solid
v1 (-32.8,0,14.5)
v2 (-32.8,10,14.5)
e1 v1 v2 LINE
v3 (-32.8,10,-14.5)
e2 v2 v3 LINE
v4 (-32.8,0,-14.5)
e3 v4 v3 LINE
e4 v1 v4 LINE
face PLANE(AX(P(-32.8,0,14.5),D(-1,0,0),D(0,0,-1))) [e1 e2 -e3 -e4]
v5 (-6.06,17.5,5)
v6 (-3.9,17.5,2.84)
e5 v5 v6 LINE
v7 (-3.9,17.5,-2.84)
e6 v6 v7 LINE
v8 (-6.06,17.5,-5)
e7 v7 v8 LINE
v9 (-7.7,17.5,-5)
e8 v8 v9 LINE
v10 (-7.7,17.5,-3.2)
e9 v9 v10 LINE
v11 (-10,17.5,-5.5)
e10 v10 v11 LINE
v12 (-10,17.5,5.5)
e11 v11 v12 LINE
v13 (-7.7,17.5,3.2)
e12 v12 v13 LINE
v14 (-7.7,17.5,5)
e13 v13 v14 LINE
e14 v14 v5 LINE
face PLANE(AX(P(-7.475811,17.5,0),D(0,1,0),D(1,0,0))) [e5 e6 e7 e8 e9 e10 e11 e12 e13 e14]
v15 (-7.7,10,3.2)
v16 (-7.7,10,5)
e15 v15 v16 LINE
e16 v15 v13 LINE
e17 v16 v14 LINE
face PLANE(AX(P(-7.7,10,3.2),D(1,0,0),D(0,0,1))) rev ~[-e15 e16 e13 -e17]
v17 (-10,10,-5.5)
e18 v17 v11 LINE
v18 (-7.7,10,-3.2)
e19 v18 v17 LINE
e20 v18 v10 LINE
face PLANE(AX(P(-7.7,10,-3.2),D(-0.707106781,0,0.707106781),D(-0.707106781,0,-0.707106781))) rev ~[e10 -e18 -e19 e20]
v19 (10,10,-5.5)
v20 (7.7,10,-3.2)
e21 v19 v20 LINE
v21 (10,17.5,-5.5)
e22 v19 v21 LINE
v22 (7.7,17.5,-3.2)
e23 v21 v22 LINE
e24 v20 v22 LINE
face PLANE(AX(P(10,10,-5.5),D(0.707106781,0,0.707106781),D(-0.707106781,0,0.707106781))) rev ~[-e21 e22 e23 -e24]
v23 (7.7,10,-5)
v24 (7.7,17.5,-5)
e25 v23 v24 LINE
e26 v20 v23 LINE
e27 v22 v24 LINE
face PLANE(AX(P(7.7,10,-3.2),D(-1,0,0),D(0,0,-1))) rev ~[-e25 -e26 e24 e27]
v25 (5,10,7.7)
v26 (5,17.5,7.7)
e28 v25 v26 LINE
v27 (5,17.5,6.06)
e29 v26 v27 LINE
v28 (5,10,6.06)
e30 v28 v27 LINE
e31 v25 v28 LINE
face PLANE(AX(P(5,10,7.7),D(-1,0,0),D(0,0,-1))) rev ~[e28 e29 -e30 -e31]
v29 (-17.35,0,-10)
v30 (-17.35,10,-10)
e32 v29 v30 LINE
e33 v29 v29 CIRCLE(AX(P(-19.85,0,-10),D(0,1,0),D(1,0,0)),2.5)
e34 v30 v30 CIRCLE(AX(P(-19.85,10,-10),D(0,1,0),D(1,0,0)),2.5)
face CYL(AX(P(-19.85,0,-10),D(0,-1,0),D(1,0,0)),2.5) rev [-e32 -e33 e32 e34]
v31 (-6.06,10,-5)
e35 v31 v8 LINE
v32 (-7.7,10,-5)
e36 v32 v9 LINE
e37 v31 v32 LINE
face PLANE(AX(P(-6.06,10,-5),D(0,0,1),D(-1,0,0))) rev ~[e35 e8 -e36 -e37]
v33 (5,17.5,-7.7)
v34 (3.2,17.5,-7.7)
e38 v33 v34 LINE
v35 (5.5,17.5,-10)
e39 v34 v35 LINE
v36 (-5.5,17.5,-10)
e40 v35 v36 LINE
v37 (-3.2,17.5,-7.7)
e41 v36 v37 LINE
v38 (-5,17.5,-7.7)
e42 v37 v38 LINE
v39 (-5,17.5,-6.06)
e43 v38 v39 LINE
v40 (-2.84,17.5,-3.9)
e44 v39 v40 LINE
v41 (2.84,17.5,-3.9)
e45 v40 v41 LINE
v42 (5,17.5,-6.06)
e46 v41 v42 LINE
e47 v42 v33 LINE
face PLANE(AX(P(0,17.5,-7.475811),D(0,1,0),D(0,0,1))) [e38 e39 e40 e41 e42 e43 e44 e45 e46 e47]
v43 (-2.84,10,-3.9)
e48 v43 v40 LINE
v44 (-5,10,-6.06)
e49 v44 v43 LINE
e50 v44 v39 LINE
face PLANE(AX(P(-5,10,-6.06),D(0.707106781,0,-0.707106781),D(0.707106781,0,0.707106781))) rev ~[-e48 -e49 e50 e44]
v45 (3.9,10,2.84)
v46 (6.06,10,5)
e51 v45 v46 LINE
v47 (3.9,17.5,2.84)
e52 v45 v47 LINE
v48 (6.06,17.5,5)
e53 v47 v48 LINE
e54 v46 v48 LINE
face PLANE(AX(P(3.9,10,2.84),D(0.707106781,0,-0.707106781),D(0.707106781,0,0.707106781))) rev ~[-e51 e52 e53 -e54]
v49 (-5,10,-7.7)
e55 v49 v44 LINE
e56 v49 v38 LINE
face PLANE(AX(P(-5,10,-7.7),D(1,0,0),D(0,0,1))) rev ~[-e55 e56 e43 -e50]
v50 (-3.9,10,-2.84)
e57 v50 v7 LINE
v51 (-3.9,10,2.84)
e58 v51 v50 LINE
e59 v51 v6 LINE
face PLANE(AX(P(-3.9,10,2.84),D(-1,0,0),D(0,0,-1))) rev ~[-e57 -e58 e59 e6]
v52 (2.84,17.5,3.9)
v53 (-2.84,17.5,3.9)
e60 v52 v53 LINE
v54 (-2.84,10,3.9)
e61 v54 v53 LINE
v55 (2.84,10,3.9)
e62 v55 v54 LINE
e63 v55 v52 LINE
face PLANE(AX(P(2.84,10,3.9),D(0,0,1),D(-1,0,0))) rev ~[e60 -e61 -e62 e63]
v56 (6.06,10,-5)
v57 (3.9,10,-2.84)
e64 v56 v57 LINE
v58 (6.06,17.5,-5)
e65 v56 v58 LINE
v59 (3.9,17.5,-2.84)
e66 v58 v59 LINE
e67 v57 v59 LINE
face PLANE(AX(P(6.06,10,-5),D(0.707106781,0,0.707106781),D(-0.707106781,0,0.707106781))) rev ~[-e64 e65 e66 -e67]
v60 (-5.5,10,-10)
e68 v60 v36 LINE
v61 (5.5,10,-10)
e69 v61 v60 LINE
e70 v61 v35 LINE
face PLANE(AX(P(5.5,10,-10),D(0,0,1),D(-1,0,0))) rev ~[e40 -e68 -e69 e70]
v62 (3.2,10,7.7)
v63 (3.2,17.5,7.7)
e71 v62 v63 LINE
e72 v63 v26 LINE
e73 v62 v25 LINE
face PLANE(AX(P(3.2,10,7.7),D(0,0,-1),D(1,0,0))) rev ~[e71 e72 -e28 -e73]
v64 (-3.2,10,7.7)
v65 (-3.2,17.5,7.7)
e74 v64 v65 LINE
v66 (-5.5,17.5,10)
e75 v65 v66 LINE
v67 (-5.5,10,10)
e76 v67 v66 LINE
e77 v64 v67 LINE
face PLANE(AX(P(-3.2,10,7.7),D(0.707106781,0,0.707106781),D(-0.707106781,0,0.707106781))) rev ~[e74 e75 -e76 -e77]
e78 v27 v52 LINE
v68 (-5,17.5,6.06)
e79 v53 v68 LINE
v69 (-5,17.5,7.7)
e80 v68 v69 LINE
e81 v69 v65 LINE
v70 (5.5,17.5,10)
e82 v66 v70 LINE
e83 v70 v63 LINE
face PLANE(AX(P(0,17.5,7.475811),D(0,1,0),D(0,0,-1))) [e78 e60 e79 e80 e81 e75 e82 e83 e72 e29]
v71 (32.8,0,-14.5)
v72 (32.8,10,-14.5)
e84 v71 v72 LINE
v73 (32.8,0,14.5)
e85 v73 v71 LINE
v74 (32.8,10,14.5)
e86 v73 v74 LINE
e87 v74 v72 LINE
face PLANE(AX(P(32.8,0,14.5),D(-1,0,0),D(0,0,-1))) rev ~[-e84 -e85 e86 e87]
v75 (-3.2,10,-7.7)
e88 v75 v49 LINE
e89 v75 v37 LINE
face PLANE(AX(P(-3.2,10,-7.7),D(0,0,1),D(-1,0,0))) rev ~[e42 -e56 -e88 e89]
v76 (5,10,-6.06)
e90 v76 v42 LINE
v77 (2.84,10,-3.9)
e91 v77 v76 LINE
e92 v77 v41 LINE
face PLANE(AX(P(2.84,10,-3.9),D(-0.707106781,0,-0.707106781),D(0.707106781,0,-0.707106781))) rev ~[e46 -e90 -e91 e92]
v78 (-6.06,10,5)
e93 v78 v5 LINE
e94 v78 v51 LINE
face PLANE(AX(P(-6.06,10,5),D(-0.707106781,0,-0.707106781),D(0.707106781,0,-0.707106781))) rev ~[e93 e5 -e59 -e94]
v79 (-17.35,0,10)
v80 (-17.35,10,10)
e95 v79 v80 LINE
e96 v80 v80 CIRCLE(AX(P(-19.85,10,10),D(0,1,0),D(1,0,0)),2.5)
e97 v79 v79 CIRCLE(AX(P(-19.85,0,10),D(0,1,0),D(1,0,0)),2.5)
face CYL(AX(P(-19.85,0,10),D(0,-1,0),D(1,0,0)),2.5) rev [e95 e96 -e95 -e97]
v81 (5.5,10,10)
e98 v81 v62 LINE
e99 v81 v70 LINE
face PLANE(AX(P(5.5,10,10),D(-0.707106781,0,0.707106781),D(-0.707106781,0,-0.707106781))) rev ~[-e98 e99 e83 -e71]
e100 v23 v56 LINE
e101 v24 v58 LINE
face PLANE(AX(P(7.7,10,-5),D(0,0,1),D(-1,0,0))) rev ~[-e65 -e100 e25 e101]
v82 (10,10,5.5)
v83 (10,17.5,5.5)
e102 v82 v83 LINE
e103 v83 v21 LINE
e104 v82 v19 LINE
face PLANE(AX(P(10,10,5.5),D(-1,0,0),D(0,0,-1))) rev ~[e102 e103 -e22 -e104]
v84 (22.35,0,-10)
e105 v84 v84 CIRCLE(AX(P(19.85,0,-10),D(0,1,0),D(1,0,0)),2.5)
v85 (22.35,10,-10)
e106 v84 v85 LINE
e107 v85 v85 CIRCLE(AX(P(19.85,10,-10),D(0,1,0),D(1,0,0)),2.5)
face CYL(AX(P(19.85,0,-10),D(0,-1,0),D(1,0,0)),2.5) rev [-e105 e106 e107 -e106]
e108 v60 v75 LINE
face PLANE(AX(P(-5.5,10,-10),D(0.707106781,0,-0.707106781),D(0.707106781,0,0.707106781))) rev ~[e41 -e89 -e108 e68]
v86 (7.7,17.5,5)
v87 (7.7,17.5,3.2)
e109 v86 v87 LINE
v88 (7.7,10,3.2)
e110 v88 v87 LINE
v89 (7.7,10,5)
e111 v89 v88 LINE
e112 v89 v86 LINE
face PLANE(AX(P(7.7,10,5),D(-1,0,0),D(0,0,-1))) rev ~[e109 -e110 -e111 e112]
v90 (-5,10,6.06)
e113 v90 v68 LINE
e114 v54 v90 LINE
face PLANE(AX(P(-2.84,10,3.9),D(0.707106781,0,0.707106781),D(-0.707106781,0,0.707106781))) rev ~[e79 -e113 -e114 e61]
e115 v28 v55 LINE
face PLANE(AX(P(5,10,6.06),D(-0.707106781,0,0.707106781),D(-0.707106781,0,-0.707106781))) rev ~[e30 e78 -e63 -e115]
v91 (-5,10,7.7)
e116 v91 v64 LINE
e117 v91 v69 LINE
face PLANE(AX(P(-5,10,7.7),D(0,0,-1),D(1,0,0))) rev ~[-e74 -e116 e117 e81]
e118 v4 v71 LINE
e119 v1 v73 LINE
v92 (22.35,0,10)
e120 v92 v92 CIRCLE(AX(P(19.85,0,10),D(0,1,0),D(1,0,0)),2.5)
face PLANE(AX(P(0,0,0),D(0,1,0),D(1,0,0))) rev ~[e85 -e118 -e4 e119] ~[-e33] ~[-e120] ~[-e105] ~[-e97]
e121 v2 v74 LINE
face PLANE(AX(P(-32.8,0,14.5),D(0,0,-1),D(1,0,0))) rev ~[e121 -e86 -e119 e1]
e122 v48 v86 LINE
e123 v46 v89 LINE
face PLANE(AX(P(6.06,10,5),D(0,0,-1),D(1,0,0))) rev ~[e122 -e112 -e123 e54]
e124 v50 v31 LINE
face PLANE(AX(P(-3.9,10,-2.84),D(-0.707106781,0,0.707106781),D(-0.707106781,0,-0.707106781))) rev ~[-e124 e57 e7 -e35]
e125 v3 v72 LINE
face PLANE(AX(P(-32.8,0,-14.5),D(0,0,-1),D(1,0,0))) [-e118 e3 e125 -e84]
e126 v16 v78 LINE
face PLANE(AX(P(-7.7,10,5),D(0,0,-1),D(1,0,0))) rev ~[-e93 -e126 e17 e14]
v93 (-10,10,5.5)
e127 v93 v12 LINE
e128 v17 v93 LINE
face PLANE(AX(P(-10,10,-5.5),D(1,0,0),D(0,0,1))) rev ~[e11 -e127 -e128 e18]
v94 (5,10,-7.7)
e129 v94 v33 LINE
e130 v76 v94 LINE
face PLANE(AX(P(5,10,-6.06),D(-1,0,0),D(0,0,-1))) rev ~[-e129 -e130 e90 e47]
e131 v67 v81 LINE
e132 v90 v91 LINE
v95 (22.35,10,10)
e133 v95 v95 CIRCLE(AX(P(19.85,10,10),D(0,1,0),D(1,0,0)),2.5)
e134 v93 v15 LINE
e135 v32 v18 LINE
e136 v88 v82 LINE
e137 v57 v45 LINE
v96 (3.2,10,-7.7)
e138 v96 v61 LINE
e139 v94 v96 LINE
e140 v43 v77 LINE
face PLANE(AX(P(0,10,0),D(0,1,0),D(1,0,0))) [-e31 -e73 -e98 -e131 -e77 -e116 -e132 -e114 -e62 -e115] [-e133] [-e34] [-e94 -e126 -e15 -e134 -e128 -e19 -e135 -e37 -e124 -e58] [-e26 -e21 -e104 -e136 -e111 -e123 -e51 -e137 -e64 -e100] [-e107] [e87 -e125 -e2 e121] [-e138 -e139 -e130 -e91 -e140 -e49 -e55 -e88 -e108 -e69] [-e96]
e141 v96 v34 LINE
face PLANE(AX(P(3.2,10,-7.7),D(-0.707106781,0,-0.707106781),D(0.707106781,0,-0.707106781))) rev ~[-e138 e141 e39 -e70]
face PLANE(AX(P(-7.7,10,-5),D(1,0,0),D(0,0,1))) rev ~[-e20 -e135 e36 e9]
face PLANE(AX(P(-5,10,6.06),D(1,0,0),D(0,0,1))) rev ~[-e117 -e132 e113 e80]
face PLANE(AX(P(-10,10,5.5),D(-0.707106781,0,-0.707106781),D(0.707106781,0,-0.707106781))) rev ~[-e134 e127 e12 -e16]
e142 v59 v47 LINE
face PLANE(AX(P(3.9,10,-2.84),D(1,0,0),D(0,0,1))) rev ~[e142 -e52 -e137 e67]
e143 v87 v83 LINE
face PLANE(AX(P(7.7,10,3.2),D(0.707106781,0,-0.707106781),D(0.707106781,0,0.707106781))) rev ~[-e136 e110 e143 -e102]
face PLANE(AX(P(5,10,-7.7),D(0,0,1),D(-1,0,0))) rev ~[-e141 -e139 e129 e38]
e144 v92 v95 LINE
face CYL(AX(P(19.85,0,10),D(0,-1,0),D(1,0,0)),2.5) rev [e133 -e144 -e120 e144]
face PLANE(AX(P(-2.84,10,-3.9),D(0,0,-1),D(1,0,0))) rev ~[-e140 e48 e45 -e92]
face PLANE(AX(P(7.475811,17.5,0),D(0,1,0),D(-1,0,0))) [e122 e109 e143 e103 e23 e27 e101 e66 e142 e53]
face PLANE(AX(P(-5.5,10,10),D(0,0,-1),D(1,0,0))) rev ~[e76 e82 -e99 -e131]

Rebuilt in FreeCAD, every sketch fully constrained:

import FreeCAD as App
import Part
import Sketcher

V = App.Vector
Q = App.Units.Quantity


def add_polygon(sketch, points):
    """Adds a closed chain of lines whose ends are joined by coincident constraints."""
    first, n = sketch.GeometryCount, len(points)
    for a, b in zip(points, points[1:] + points[:1]):
        sketch.addGeometry(Part.LineSegment(App.Vector(*a, 0), App.Vector(*b, 0)), False)
    for i in range(n):
        sketch.addConstraint(Sketcher.Constraint("Coincident", first + i, 2, first + (i + 1) % n, 1))

doc = App.newDocument("Part")
body = doc.addObject("PartDesign::Body", "Body")

# Sketch on XZ plane
sketch1 = doc.addObject("Sketcher::SketchObject", "Sketch")
body.addObject(sketch1)
sketch1.AttachmentSupport = (doc.XZ_Plane, [""])
sketch1.MapMode = "FlatFace"
add_polygon(sketch1, [(-32.8, -14.5), (-32.8, 14.5), (32.8, 14.5), (32.8, -14.5)])  # lines 0-3
sketch1.addGeometry(Part.Circle(V(-19.9, 10, 0), V(0, 0, 1), 2.5), False)  # 4
sketch1.addGeometry(Part.Circle(V(19.9, 10, 0), V(0, 0, 1), 2.5), False)  # 5
sketch1.addGeometry(Part.Circle(V(-19.9, -10, 0), V(0, 0, 1), 2.5), False)  # 6
sketch1.addGeometry(Part.Circle(V(19.9, -10, 0), V(0, 0, 1), 2.5), False)  # 7
sketch1.addConstraint([
    Sketcher.Constraint("Vertical", 0),
    Sketcher.Constraint("Horizontal", 1),
    Sketcher.Constraint("Vertical", 2),
    Sketcher.Constraint("Horizontal", 3),
    Sketcher.Constraint("Equal", 4, 5),
    Sketcher.Constraint("Equal", 5, 6),
    Sketcher.Constraint("Equal", 6, 7),
    Sketcher.Constraint("Symmetric", 5, 3, 6, 3, -1, 1),
    Sketcher.Constraint("Symmetric", 4, 3, 7, 3, -1, 1),
    Sketcher.Constraint("Symmetric", 0, 2, 2, 2, -1, 1),
    Sketcher.Constraint("Symmetric", 4, 3, 5, 3, -2),
    Sketcher.Constraint("Diameter", 4, Q("5 mm")),
    Sketcher.Constraint("DistanceY", 0, 1, 0, 2, Q("29 mm")),
    Sketcher.Constraint("DistanceX", 1, 1, 1, 2, Q("65.6 mm")),
    Sketcher.Constraint("DistanceY", -1, 1, 4, 3, Q("10 mm")),
    Sketcher.Constraint("DistanceX", 4, 3, 5, 3, Q("39.7 mm")),
])
pad1 = doc.addObject("PartDesign::Pad", "Pad")
body.addObject(pad1)
pad1.Profile = sketch1
pad1.Length = 10
pad1.Reversed = True

# Sketch on XZ plane
sketch2 = doc.addObject("Sketcher::SketchObject", "Sketch001")
body.addObject(sketch2)
sketch2.AttachmentSupport = (doc.XZ_Plane, [""])
sketch2.MapMode = "FlatFace"
sketch2.AttachmentOffset = App.Placement(V(0, 0, -10), App.Rotation())
add_polygon(sketch2, [(-10, -5.5), (-10, 5.5), (-7.7, 3.2), (-7.7, 5), (-6.1, 5), (-3.9, 2.8), (-3.9, -2.8), (-6.1, -5), (-7.7, -5), (-7.7, -3.2)])  # lines 0-9
sketch2.addConstraint([
    Sketcher.Constraint("Vertical", 0),
    Sketcher.Constraint("Vertical", 2),
    Sketcher.Constraint("Horizontal", 3),
    Sketcher.Constraint("Vertical", 5),
    Sketcher.Constraint("Horizontal", 7),
    Sketcher.Constraint("Vertical", 8),
    Sketcher.Constraint("Symmetric", 3, 2, 6, 2, -1),
    Sketcher.Constraint("Symmetric", 1, 2, 8, 2, -1),
    Sketcher.Constraint("Parallel", 1, 4),
    Sketcher.Constraint("Perpendicular", 4, 6),
    Sketcher.Constraint("Parallel", 6, 9),
    Sketcher.Constraint("Equal", 4, 6),
    Sketcher.Constraint("DistanceY", 0, 1, 0, 2, Q("11 mm")),
    Sketcher.Constraint("DistanceY", 2, 1, 2, 2, Q("1.8 mm")),
    Sketcher.Constraint("DistanceX", 0, 2, -1, 1, Q("10 mm")),
    Sketcher.Constraint("DistanceY", -1, 1, 2, 2, Q("5 mm")),
    Sketcher.Constraint("DistanceX", 3, 1, 3, 2, Q("1.64 mm")),
    Sketcher.Constraint("DistanceY", 5, 2, 5, 1, Q("5.68 mm")),
])
pad2 = doc.addObject("PartDesign::Pad", "Pad001")
body.addObject(pad2)
pad2.Profile = sketch2
pad2.Length = 7.5
pad2.Reversed = True
doc.recompute()

polarpattern = doc.addObject("PartDesign::PolarPattern", "PolarPattern")
body.addObject(polarpattern)
polarpattern.Originals = [pad2]
polarpattern.Axis = (doc.Y_Axis, [""])
polarpattern.Angle = 360
polarpattern.Occurrences = 4
body.Tip = polarpattern

doc.recompute()
